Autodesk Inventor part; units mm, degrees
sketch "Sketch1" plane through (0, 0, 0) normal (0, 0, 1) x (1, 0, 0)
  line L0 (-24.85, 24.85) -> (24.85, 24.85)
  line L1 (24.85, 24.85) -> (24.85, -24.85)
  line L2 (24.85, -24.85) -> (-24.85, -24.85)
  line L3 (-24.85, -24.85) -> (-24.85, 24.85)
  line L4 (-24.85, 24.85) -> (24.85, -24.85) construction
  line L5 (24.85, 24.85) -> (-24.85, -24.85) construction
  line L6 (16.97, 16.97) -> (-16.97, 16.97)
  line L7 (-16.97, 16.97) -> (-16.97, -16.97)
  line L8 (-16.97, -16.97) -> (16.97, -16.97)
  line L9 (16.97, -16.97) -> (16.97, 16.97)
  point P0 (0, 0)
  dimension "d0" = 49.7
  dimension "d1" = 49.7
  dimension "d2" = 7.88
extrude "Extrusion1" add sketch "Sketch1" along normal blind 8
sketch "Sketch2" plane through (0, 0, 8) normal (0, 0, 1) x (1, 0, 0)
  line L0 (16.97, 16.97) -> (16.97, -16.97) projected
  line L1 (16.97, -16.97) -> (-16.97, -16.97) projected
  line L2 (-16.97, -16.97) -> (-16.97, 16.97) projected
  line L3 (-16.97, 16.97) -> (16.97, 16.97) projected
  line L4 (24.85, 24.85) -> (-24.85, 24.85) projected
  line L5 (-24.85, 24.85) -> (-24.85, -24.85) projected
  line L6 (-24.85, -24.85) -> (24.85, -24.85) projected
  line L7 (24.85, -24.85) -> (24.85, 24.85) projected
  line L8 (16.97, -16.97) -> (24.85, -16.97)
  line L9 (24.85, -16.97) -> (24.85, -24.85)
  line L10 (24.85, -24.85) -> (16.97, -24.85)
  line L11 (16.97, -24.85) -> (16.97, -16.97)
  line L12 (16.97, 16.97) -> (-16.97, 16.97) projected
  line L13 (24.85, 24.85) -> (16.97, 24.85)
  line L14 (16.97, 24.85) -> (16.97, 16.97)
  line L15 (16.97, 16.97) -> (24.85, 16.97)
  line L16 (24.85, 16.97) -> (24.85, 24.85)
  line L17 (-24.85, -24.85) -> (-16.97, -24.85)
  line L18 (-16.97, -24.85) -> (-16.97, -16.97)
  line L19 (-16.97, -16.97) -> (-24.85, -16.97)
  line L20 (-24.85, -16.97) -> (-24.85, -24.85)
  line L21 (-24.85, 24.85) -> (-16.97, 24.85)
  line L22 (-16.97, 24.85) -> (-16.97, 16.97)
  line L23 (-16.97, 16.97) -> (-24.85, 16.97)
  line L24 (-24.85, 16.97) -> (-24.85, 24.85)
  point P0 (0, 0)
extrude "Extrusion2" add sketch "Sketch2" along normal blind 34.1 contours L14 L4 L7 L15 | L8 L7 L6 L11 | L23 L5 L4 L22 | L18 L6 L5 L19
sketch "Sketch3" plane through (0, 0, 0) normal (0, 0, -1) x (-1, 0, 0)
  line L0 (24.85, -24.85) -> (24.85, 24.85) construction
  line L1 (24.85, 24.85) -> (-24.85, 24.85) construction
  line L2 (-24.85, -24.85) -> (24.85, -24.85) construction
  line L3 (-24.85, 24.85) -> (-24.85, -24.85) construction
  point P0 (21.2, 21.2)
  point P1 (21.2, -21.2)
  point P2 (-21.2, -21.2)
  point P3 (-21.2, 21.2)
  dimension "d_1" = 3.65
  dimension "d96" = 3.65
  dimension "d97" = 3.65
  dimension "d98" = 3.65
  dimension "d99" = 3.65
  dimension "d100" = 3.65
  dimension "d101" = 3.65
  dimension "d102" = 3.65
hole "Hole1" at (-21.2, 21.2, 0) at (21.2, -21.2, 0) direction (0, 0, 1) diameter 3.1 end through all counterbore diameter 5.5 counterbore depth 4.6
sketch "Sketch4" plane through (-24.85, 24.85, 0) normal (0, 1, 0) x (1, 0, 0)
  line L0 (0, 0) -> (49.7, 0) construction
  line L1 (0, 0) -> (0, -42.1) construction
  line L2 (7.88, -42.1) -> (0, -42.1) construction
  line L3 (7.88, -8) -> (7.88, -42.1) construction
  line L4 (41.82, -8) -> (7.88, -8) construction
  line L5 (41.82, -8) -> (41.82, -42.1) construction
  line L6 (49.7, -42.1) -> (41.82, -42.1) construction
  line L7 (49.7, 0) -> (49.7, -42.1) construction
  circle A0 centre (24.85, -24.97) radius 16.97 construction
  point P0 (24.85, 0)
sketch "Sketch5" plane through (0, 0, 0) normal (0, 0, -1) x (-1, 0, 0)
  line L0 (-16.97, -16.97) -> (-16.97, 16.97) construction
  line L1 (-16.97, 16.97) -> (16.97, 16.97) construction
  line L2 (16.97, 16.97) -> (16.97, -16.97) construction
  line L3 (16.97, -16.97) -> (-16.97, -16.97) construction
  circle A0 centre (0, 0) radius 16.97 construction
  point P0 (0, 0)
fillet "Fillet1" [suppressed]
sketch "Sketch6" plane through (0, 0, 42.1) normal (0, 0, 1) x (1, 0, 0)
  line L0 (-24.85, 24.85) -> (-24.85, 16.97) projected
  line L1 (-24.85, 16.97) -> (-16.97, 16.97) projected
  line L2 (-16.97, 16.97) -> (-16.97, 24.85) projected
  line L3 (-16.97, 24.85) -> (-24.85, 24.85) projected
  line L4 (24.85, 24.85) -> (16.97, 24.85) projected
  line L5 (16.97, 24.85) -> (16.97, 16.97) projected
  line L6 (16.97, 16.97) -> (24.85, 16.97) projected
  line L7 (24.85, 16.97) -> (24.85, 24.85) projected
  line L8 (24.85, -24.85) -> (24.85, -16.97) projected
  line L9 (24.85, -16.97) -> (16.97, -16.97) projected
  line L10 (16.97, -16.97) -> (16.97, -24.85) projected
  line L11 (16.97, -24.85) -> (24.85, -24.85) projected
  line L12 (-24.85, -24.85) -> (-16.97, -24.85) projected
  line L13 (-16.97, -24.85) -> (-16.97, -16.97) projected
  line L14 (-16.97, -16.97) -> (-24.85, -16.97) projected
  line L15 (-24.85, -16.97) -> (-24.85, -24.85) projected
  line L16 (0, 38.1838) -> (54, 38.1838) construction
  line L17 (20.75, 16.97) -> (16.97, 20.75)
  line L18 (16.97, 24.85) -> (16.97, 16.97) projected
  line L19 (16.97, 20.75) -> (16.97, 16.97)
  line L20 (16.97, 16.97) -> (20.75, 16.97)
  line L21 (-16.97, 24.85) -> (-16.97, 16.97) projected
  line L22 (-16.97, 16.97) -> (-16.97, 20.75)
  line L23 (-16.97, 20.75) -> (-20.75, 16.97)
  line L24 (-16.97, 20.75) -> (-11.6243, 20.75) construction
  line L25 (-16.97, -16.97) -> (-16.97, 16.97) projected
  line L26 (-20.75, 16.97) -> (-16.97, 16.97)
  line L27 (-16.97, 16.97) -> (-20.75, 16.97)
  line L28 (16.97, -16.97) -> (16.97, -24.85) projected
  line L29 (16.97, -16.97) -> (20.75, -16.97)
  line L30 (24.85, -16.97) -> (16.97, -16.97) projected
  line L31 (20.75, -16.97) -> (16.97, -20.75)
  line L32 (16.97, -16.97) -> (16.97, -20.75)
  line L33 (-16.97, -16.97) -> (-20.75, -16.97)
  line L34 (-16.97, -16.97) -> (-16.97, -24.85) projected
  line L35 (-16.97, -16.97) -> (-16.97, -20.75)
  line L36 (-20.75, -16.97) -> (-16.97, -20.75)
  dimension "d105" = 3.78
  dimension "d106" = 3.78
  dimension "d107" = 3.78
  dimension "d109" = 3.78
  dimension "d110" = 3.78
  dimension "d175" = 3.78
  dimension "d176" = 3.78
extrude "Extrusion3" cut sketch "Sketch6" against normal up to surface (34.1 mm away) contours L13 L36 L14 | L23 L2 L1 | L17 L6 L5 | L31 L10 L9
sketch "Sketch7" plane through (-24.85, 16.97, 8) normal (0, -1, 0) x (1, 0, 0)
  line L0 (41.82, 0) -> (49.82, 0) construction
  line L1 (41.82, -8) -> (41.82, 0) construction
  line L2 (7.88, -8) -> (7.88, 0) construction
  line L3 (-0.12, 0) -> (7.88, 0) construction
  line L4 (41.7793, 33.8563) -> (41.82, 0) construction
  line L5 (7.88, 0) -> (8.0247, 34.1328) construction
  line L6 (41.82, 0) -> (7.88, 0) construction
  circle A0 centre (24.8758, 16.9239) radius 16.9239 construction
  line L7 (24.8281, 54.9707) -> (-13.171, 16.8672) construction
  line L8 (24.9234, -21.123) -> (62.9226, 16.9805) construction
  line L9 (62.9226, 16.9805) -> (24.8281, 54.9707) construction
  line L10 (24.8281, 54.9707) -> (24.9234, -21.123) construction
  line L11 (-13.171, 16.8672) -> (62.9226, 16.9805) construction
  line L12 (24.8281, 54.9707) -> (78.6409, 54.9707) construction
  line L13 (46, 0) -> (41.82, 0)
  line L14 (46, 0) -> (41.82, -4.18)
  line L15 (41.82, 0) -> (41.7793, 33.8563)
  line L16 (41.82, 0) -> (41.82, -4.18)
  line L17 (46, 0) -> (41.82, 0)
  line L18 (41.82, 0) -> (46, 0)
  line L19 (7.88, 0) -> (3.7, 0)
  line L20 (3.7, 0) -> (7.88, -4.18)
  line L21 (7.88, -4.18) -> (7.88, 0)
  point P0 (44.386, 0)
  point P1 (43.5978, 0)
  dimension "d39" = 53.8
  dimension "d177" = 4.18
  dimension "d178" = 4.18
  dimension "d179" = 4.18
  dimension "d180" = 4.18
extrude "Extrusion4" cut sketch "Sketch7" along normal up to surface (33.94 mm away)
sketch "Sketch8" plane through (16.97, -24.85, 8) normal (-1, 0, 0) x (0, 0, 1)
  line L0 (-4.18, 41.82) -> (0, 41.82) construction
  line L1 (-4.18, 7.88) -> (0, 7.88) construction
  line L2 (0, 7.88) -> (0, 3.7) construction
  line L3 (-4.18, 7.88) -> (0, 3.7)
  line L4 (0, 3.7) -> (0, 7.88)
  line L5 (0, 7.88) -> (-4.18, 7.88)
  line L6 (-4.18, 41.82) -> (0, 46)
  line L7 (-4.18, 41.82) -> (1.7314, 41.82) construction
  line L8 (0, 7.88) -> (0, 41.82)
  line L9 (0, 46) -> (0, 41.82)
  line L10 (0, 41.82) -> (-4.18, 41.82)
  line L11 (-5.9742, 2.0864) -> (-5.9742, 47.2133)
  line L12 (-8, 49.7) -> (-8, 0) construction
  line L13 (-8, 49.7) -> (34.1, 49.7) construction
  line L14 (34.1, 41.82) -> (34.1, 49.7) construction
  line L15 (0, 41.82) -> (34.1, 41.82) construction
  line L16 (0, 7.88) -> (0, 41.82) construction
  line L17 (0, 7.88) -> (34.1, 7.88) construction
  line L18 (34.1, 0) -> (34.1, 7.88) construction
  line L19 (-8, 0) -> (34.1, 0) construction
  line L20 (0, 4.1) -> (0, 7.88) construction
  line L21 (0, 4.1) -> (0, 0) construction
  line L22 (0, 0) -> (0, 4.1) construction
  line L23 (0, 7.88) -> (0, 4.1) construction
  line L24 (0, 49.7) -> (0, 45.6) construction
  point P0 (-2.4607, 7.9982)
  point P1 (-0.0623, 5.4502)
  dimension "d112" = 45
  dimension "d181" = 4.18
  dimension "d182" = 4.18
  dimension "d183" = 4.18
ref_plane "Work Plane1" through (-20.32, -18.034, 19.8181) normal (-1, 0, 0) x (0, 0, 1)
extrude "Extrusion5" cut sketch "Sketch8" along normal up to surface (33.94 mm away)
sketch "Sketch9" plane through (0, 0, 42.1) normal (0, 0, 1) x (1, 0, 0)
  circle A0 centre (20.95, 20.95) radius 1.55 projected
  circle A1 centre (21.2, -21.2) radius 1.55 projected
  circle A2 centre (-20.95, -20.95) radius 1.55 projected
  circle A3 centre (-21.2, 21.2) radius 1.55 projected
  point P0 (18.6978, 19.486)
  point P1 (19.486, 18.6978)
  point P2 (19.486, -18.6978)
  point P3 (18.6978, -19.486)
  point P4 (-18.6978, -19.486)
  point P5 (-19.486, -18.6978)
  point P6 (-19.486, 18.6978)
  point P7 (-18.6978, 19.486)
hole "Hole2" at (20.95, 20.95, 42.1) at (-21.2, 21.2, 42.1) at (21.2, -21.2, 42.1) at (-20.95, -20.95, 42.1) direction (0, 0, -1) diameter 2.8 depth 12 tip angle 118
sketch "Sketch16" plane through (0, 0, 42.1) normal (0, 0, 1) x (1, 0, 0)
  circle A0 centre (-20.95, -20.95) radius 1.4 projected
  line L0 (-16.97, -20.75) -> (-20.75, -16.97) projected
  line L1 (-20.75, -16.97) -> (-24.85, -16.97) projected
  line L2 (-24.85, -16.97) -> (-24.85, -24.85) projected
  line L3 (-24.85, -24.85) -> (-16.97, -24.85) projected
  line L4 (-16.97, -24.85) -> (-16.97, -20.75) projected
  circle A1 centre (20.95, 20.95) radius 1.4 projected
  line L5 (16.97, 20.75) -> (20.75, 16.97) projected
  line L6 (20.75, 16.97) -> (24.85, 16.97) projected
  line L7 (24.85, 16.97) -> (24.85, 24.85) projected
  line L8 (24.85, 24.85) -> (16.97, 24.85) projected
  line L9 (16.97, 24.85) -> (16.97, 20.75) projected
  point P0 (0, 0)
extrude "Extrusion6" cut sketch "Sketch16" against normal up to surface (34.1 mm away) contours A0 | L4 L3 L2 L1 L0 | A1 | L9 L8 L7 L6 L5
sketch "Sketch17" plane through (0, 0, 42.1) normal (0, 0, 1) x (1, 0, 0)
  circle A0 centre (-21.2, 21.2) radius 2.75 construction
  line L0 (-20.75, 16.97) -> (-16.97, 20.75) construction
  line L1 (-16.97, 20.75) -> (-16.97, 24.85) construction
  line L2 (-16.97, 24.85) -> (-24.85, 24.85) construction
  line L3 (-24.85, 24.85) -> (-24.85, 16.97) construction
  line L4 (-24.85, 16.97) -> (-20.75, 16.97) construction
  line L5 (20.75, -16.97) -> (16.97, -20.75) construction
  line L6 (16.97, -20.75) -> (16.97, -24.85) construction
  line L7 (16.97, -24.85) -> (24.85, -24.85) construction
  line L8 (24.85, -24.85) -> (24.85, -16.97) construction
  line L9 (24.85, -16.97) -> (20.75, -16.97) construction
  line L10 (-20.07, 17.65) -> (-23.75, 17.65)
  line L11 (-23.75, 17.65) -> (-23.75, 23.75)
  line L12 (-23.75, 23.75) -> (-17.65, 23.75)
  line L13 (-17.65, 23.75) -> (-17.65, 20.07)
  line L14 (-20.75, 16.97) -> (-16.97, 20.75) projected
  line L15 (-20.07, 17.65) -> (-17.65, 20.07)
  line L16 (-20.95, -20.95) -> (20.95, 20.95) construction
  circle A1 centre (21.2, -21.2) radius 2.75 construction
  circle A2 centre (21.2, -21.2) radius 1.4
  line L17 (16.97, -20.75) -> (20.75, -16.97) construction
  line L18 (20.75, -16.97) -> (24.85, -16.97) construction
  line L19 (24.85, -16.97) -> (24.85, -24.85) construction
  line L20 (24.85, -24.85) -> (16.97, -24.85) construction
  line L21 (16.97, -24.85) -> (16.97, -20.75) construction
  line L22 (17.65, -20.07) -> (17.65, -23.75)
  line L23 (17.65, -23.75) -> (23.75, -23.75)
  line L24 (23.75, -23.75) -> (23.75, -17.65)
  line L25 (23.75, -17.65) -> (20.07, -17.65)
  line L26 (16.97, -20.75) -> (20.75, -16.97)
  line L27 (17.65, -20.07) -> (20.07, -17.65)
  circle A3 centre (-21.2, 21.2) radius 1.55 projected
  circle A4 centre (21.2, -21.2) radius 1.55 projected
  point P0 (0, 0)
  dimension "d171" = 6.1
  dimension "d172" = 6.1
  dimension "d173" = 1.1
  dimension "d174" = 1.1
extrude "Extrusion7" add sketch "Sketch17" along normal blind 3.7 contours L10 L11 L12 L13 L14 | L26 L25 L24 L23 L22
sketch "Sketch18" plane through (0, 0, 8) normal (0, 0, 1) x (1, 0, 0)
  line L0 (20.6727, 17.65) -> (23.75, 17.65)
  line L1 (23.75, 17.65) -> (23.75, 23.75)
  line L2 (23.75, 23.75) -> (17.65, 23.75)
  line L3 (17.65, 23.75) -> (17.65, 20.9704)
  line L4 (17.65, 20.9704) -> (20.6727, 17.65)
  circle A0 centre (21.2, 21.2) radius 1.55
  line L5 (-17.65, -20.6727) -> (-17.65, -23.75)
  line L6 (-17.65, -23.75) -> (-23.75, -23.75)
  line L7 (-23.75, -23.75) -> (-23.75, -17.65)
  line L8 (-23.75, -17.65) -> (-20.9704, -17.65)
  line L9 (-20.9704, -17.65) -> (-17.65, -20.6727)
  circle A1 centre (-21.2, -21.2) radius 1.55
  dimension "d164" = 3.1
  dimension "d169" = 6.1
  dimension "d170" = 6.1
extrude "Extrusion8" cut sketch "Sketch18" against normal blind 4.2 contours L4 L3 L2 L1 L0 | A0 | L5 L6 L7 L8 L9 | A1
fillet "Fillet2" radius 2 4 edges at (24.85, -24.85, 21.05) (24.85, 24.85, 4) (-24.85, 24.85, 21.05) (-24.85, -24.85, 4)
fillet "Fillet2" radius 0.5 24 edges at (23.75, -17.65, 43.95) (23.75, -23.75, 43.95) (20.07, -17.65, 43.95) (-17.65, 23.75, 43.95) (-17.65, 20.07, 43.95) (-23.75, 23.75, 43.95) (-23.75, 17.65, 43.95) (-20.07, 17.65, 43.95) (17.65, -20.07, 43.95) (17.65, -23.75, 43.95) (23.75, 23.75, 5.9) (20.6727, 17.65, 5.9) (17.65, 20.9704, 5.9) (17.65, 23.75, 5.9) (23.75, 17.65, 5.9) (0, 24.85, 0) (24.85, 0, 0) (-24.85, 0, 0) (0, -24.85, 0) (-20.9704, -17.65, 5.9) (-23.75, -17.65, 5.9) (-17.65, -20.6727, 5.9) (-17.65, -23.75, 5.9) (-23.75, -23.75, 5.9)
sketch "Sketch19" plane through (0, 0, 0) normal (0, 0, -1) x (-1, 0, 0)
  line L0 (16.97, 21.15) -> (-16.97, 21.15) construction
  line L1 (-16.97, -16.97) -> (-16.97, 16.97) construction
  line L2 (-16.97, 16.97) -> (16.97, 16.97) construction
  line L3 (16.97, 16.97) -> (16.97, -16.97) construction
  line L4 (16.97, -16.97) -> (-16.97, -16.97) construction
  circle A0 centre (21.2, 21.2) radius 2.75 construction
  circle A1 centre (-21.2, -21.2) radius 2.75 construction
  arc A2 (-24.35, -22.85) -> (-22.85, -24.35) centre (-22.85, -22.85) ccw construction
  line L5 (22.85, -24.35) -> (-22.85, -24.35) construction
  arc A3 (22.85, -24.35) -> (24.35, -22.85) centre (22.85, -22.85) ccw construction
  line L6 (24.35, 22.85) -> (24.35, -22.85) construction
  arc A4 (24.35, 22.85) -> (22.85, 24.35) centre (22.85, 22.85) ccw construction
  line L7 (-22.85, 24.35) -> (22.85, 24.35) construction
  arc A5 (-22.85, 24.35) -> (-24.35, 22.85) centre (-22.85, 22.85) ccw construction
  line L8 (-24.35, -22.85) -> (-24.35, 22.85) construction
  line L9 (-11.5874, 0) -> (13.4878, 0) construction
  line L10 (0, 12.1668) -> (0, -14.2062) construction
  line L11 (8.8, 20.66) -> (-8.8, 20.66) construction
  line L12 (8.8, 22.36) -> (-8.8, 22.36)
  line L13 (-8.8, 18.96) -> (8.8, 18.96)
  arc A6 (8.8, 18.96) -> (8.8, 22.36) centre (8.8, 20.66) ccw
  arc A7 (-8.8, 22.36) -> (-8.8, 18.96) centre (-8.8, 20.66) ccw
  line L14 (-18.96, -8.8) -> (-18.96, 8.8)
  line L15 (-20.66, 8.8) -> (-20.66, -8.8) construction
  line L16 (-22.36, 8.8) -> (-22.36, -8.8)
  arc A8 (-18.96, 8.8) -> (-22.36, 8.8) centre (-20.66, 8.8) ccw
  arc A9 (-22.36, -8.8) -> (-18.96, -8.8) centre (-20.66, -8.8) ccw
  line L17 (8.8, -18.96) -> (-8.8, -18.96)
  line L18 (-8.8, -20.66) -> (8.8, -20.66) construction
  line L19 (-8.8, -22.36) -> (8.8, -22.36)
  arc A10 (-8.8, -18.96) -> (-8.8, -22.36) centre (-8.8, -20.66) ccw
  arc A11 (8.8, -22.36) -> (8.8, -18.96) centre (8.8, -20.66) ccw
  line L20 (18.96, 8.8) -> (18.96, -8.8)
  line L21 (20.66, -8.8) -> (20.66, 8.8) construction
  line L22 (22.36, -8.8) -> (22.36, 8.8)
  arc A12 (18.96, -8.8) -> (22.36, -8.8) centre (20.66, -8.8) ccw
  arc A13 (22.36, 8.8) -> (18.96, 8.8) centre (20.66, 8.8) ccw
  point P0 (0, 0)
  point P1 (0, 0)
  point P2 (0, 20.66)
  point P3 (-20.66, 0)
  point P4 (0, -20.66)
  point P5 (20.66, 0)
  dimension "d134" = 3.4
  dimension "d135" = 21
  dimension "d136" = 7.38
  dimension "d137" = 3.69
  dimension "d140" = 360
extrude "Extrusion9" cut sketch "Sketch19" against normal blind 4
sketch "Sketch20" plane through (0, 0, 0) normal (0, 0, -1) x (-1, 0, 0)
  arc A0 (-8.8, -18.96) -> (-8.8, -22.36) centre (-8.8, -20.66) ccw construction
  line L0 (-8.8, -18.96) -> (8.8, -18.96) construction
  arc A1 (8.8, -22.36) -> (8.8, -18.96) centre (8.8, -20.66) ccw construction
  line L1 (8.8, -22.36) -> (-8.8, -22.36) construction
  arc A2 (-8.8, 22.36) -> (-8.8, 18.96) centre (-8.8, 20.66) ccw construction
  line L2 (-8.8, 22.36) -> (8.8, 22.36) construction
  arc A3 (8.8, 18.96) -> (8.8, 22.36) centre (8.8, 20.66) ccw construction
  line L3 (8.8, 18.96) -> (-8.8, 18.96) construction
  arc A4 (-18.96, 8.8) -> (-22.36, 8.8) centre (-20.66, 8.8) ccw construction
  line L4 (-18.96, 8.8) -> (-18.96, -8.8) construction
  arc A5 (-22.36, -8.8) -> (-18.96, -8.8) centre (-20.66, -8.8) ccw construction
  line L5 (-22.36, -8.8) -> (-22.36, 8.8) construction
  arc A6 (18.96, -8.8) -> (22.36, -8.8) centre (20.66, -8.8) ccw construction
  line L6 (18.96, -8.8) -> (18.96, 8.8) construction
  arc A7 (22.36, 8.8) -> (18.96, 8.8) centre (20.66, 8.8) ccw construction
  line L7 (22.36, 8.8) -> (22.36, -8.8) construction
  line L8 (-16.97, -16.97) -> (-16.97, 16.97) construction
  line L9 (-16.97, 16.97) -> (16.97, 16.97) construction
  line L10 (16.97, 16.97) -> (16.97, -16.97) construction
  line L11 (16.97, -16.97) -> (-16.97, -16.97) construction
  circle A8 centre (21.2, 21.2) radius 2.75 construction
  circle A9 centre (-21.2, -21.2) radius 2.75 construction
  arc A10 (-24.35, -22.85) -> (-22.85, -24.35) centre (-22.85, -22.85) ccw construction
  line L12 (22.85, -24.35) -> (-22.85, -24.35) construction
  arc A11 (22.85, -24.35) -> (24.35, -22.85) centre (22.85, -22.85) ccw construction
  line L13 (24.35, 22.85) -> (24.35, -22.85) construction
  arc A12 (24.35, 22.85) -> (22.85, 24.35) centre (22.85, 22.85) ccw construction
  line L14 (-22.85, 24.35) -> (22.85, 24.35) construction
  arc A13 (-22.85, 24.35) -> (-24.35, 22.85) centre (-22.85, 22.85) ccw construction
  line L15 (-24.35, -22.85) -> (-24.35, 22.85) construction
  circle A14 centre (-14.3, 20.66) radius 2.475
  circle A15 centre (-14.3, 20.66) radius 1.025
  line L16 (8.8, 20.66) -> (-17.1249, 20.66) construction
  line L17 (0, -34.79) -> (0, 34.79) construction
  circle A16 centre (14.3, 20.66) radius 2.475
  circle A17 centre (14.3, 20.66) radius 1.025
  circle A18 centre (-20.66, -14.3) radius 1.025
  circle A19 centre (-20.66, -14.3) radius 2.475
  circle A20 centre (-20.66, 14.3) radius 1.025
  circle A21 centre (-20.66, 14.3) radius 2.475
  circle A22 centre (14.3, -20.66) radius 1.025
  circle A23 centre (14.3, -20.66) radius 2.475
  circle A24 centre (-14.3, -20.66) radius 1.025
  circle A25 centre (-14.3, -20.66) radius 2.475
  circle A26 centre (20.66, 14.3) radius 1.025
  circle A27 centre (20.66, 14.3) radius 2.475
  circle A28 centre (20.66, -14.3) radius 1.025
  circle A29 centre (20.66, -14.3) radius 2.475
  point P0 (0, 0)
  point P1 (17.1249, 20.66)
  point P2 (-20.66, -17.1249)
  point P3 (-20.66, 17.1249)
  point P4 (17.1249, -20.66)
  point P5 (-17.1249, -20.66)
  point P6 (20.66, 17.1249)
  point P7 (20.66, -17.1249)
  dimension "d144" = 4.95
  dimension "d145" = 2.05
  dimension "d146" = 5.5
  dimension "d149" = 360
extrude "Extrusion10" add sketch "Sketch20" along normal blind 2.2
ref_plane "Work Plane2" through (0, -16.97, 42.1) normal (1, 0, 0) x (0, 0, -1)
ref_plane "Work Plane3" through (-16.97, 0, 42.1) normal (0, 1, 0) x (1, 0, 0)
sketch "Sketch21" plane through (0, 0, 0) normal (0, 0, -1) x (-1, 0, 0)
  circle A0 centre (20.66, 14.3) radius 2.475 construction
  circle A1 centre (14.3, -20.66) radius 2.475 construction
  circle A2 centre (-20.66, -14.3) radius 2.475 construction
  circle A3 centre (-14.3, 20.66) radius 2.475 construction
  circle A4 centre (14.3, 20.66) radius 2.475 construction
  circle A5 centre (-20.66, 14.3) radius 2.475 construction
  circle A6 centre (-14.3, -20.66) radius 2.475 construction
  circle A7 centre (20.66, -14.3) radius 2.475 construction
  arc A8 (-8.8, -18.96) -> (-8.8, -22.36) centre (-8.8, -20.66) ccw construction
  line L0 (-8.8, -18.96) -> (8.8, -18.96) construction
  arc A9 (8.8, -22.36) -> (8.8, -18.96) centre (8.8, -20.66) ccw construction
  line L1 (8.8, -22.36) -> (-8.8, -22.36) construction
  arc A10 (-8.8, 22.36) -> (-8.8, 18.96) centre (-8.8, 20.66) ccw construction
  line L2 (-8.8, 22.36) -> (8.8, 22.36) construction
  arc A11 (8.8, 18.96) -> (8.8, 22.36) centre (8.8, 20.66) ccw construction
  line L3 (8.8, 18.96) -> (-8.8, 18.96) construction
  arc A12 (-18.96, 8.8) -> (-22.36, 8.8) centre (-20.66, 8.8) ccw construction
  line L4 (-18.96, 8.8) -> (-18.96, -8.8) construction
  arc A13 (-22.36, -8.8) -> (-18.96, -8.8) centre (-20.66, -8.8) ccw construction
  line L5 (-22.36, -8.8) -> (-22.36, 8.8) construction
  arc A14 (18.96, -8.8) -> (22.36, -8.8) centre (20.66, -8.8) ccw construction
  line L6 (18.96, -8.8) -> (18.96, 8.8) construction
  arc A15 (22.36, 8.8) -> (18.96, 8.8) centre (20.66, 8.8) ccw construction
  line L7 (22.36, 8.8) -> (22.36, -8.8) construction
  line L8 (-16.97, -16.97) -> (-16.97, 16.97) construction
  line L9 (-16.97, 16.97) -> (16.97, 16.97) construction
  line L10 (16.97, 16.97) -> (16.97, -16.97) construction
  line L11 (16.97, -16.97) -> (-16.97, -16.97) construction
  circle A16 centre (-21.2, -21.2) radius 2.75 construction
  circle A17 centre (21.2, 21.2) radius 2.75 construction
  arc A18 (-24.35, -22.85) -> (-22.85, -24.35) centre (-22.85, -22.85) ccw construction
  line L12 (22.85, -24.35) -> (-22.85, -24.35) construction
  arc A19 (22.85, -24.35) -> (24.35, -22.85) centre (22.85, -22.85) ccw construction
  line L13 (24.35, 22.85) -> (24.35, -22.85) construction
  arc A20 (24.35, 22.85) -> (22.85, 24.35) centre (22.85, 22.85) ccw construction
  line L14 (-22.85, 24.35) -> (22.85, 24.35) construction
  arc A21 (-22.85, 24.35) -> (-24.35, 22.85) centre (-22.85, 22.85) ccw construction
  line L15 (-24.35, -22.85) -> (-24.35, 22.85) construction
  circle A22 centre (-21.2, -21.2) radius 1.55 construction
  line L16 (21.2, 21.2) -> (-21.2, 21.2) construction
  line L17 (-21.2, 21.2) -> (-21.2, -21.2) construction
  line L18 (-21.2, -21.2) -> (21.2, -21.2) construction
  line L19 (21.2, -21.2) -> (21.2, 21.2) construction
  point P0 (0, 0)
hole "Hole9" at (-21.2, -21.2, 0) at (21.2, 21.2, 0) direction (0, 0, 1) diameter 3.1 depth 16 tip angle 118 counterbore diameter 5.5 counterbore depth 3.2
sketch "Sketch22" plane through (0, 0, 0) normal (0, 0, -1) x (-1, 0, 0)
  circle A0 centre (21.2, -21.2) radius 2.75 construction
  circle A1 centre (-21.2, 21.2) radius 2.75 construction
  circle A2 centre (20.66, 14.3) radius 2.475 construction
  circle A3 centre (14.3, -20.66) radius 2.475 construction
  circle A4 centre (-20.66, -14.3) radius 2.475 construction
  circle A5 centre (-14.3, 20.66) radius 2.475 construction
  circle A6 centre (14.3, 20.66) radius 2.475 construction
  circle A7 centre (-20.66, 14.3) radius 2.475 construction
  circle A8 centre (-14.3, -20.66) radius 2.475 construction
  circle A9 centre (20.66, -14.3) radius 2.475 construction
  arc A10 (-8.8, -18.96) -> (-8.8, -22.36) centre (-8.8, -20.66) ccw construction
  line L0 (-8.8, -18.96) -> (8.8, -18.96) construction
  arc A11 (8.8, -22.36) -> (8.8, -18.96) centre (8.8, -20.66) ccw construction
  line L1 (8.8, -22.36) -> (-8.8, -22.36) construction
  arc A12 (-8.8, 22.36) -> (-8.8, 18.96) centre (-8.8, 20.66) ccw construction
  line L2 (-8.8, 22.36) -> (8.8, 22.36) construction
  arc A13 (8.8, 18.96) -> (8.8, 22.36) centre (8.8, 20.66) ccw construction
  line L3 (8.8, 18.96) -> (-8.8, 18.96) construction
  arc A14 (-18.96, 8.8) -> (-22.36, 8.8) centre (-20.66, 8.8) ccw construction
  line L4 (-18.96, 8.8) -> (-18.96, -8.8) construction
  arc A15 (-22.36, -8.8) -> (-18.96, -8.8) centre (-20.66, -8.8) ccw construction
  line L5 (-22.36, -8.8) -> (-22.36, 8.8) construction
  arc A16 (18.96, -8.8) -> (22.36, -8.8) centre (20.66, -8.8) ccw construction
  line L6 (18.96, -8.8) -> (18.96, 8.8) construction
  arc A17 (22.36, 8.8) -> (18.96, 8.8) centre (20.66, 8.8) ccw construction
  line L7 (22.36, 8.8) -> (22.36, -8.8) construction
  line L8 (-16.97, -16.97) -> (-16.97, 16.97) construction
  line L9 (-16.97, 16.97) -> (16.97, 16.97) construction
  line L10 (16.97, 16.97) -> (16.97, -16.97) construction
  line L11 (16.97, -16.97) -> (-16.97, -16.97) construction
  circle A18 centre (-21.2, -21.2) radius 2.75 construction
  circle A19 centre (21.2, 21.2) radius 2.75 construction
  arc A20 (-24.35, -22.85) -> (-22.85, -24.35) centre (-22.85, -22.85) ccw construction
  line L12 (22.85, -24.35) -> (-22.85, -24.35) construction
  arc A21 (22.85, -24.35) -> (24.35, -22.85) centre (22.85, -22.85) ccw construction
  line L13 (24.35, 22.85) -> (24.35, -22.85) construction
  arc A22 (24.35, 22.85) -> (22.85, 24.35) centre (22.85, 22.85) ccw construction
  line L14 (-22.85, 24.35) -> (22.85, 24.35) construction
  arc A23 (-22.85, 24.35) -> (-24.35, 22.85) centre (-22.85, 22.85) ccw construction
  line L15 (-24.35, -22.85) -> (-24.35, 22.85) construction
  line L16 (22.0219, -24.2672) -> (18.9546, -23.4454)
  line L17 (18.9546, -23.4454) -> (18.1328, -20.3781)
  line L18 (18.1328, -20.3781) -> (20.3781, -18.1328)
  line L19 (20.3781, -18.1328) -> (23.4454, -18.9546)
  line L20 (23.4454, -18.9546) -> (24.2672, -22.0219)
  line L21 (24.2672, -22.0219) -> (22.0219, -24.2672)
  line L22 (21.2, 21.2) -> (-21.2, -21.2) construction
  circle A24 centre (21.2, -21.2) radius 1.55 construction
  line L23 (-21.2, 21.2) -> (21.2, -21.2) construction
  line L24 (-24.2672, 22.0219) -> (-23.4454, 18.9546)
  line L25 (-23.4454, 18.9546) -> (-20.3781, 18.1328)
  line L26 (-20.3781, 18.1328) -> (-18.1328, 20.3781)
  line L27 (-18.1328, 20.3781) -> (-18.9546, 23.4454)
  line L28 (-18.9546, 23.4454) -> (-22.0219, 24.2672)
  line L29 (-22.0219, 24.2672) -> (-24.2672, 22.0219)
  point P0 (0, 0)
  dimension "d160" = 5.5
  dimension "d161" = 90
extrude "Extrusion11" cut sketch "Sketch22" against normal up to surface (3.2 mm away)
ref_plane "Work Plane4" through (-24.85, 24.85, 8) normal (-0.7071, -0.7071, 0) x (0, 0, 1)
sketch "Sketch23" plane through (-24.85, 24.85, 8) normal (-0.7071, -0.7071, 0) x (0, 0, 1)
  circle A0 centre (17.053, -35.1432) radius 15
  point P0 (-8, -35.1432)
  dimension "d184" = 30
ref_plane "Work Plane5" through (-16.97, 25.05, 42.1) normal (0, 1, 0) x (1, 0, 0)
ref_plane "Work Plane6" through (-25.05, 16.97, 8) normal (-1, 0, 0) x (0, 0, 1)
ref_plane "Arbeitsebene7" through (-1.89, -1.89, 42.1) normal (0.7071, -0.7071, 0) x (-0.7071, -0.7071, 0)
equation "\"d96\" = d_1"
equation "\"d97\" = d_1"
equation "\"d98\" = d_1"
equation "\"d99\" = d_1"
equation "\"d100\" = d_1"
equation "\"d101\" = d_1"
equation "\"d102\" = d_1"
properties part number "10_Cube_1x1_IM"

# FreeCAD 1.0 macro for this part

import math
import FreeCAD as App
import Part
import Sketcher

V = App.Vector
Q = App.Units.Quantity


def edges_at(feature, points):
    """Names of the edges that pass closest to the given points."""
    edges = feature.Shape.Edges
    near = lambda p: min(range(len(edges)), key=lambda i: edges[i].distToShape(Part.Vertex(*p))[0])
    return sorted({f"Edge{near(p) + 1}" for p in points})


def add_polygon(sketch, points):
    """Adds a closed chain of lines whose ends are joined by coincident constraints."""
    first, n = sketch.GeometryCount, len(points)
    for a, b in zip(points, points[1:] + points[:1]):
        sketch.addGeometry(Part.LineSegment(App.Vector(*a, 0), App.Vector(*b, 0)), False)
    for i in range(n):
        sketch.addConstraint(Sketcher.Constraint("Coincident", first + i, 2, first + (i + 1) % n, 1))

doc = App.newDocument("Part")
body = doc.addObject("PartDesign::Body", "Body")

# Sketch on XY plane
sketch1 = doc.addObject("Sketcher::SketchObject", "Sketch")
body.addObject(sketch1)
sketch1.AttachmentSupport = (doc.XY_Plane, [""])
sketch1.MapMode = "FlatFace"
add_polygon(sketch1, [(25, 25), (-25, 25), (-25, -25), (25, -25)])  # lines 0-3
add_polygon(sketch1, [(-17, 17), (17, 17), (17, -17), (-17, -17)])  # lines 4-7
sketch1.addConstraint([
    Sketcher.Constraint("Horizontal", 0),
    Sketcher.Constraint("Vertical", 1),
    Sketcher.Constraint("Horizontal", 2),
    Sketcher.Constraint("Vertical", 3),
    Sketcher.Constraint("Horizontal", 4),
    Sketcher.Constraint("Vertical", 5),
    Sketcher.Constraint("Horizontal", 6),
    Sketcher.Constraint("Vertical", 7),
    Sketcher.Constraint("Symmetric", 0, 2, 2, 2, -1, 1),
    Sketcher.Constraint("Symmetric", 4, 2, 6, 2, -1, 1),
    Sketcher.Constraint("Equal", 2, 1),
    Sketcher.Constraint("Equal", 6, 5),
    Sketcher.Constraint("DistanceX", 0, 2, 0, 1, Q("49.7 mm")),
    Sketcher.Constraint("DistanceX", 4, 2, 3, 2, Q("7.88 mm")),
])
pad1 = doc.addObject("PartDesign::Pad", "Pad")
body.addObject(pad1)
pad1.Profile = sketch1
pad1.Length = 8

# Sketch on XY plane
sketch2 = doc.addObject("Sketcher::SketchObject", "Sketch001")
body.addObject(sketch2)
sketch2.AttachmentSupport = (doc.XY_Plane, [""])
sketch2.MapMode = "FlatFace"
sketch2.AttachmentOffset = App.Placement(V(0, 0, 8), App.Rotation())
add_polygon(sketch2, [(17, 25), (17, 17), (25, 17), (25, 25)])  # lines 0-3
add_polygon(sketch2, [(25, -17), (17, -17), (17, -25), (25, -25)])  # lines 4-7
add_polygon(sketch2, [(-25, 17), (-17, 17), (-17, 25), (-25, 25)])  # lines 8-11
add_polygon(sketch2, [(-17, -25), (-17, -17), (-25, -17), (-25, -25)])  # lines 12-15
sketch2.addConstraint([
    Sketcher.Constraint("Vertical", 0),
    Sketcher.Constraint("Horizontal", 1),
    Sketcher.Constraint("Vertical", 2),
    Sketcher.Constraint("Horizontal", 3),
    Sketcher.Constraint("Horizontal", 4),
    Sketcher.Constraint("Vertical", 5),
    Sketcher.Constraint("Horizontal", 6),
    Sketcher.Constraint("Vertical", 7),
    Sketcher.Constraint("Horizontal", 8),
    Sketcher.Constraint("Vertical", 9),
    Sketcher.Constraint("Horizontal", 10),
    Sketcher.Constraint("Vertical", 11),
    Sketcher.Constraint("Vertical", 12),
    Sketcher.Constraint("Horizontal", 13),
    Sketcher.Constraint("Vertical", 14),
    Sketcher.Constraint("Horizontal", 15),
    Sketcher.Constraint("Symmetric", 4, 2, 8, 2, -1, 1),
    Sketcher.Constraint("Symmetric", 6, 2, 10, 2, -1, 1),
    Sketcher.Constraint("Symmetric", 0, 2, 12, 2, -1, 1),
    Sketcher.Constraint("Symmetric", 2, 2, 14, 2, -1, 1),
    Sketcher.Constraint("Symmetric", 0, 2, 8, 2, -2),
    Sketcher.Constraint("Symmetric", 2, 2, 10, 2, -2),
    Sketcher.Constraint("Equal", 15, 0),
    Sketcher.Constraint("DistanceX", 1, 1, 1, 2, Q("7.88 mm")),
    Sketcher.Constraint("DistanceY", 5, 2, 3, 2, Q("49.7 mm")),
    Sketcher.Constraint("DistanceX", 10, 2, 2, 2, Q("49.7 mm")),
])
pad2 = doc.addObject("PartDesign::Pad", "Pad001")
body.addObject(pad2)
pad2.Profile = sketch2
pad2.Length = 34.1

# Sketch on XY plane
sketch3 = doc.addObject("Sketcher::SketchObject", "Sketch002")
body.addObject(sketch3)
sketch3.AttachmentSupport = (doc.XY_Plane, [""])
sketch3.MapMode = "FlatFace"
sketch3.addGeometry([
    Part.Circle(V(-21.2, 21.2, 0), V(0, 0, 1), 1.6),
    Part.Circle(V(21.2, -21.2, 0), V(0, 0, 1), 1.6),
], False)
sketch3.addConstraint([
    Sketcher.Constraint("Equal", 0, 1),
    Sketcher.Constraint("Symmetric", 0, 3, 1, 3, -1, 1),
    Sketcher.Constraint("Diameter", 0, Q("3.1 mm")),
    Sketcher.Constraint("DistanceX", 0, 3, -1, 1, Q("21.2 mm")),
    Sketcher.Constraint("DistanceY", -1, 1, 0, 3, Q("21.2 mm")),
])
doc.recompute()
hole = doc.addObject("PartDesign::Hole", "Hole")
body.addObject(hole)
hole.Profile = sketch3
hole.ThreadType = "None"
hole.Diameter = 3.1
hole.DepthType = "ThroughAll"
hole.HoleCutType = "Counterbore"
hole.HoleCutDiameter = 5.5
hole.HoleCutDepth = 4.6
hole.Reversed = True

# Sketch on XY plane
sketch4 = doc.addObject("Sketcher::SketchObject", "Sketch003")
body.addObject(sketch4)
sketch4.AttachmentSupport = (doc.XY_Plane, [""])
sketch4.MapMode = "FlatFace"
sketch4.AttachmentOffset = App.Placement(V(0, 0, 42.1), App.Rotation())
add_polygon(sketch4, [(-17, -20.8), (-17, -17), (-20.8, -17)])  # lines 0-2
add_polygon(sketch4, [(-17, 20.8), (-20.8, 17), (-17, 17)])  # lines 3-5
add_polygon(sketch4, [(20.8, 17), (17, 20.8), (17, 17)])  # lines 6-8
add_polygon(sketch4, [(17, -20.8), (20.8, -17), (17, -17)])  # lines 9-11
sketch4.addConstraint([
    Sketcher.Constraint("Vertical", 0),
    Sketcher.Constraint("Horizontal", 1),
    Sketcher.Constraint("Horizontal", 4),
    Sketcher.Constraint("Vertical", 5),
    Sketcher.Constraint("Vertical", 7),
    Sketcher.Constraint("Horizontal", 8),
    Sketcher.Constraint("Horizontal", 10),
    Sketcher.Constraint("Vertical", 11),
    Sketcher.Constraint("Symmetric", 2, 2, 6, 2, -1, 1),
    Sketcher.Constraint("Symmetric", 1, 2, 8, 2, -1, 1),
    Sketcher.Constraint("Symmetric", 3, 2, 9, 2, -1, 1),
    Sketcher.Constraint("Symmetric", 5, 2, 11, 2, -1, 1),
    Sketcher.Constraint("Symmetric", 5, 2, 6, 2, -2),
    Sketcher.Constraint("Symmetric", 3, 2, 8, 2, -2),
    Sketcher.Constraint("Perpendicular", 2, 3),
    Sketcher.Constraint("DistanceX", 1, 2, 1, 1, Q("3.78 mm")),
    Sketcher.Constraint("DistanceY", 2, 2, 5, 2, Q("41.5 mm")),
    Sketcher.Constraint("DistanceX", 3, 2, 8, 2, Q("41.5 mm")),
])
pocket1 = doc.addObject("PartDesign::Pocket", "Pocket")
body.addObject(pocket1)
pocket1.Profile = sketch4
pocket1.Length = 34.1

# Sketch on XZ plane
sketch5 = doc.addObject("Sketcher::SketchObject", "Sketch004")
body.addObject(sketch5)
sketch5.AttachmentSupport = (doc.XZ_Plane, [""])
sketch5.MapMode = "FlatFace"
sketch5.AttachmentOffset = App.Placement(V(0, 0, -16.97), App.Rotation())
add_polygon(sketch5, [(17, 3.8), (21.1, 8), (17, 8)])  # lines 0-2
add_polygon(sketch5, [(-17, 3.8), (-17, 8), (-21.1, 8)])  # lines 3-5
sketch5.addConstraint([
    Sketcher.Constraint("Horizontal", 1),
    Sketcher.Constraint("Vertical", 2),
    Sketcher.Constraint("Vertical", 3),
    Sketcher.Constraint("Horizontal", 4),
    Sketcher.Constraint("Symmetric", 1, 2, 3, 2, -2),
    Sketcher.Constraint("Perpendicular", 0, 5),
    Sketcher.Constraint("Horizontal", 2, 2, 5, 2),
    Sketcher.Constraint("Equal", 1, 4),
    Sketcher.Constraint("DistanceX", 1, 2, 1, 1, Q("4.18 mm")),
    Sketcher.Constraint("DistanceY", -1, 1, 0, 2, Q("8 mm")),
    Sketcher.Constraint("DistanceX", 4, 2, 0, 2, Q("42.3 mm")),
])
pocket2 = doc.addObject("PartDesign::Pocket", "Pocket001")
body.addObject(pocket2)
pocket2.Profile = sketch5
pocket2.Length = 33.94
pocket2.Reversed = True

# Sketch on YZ plane
sketch6 = doc.addObject("Sketcher::SketchObject", "Sketch005")
body.addObject(sketch6)
sketch6.AttachmentSupport = (doc.YZ_Plane, [""])
sketch6.MapMode = "FlatFace"
sketch6.AttachmentOffset = App.Placement(V(0, 0, 16.97), App.Rotation())
add_polygon(sketch6, [(-17, 8), (-17, 3.8), (-21.1, 8)])  # lines 0-2
add_polygon(sketch6, [(17, 3.8), (17, 8), (21.1, 8)])  # lines 3-5
sketch6.addConstraint([
    Sketcher.Constraint("Vertical", 0),
    Sketcher.Constraint("Horizontal", 2),
    Sketcher.Constraint("Vertical", 3),
    Sketcher.Constraint("Horizontal", 4),
    Sketcher.Constraint("Symmetric", 2, 2, 3, 2, -2),
    Sketcher.Constraint("Perpendicular", 1, 5),
    Sketcher.Constraint("Horizontal", 0, 2, 5, 2),
    Sketcher.Constraint("Equal", 2, 4),
    Sketcher.Constraint("DistanceX", 2, 1, 2, 2, Q("4.18 mm")),
    Sketcher.Constraint("DistanceY", -1, 1, 1, 2, Q("8 mm")),
    Sketcher.Constraint("DistanceX", 1, 2, 4, 2, Q("42.3 mm")),
])
pocket3 = doc.addObject("PartDesign::Pocket", "Pocket002")
body.addObject(pocket3)
pocket3.Profile = sketch6
pocket3.Length = 33.94

# Sketch on XY plane
sketch7 = doc.addObject("Sketcher::SketchObject", "Sketch006")
body.addObject(sketch7)
sketch7.AttachmentSupport = (doc.XY_Plane, [""])
sketch7.MapMode = "FlatFace"
sketch7.AttachmentOffset = App.Placement(V(0, 0, 42.1), App.Rotation())
sketch7.addGeometry([
    Part.Circle(V(20.9, 20.9, 0), V(0, 0, 1), 1.4),
    Part.Circle(V(-21.2, 21.2, 0), V(0, 0, 1), 1.4),
    Part.Circle(V(21.2, -21.2, 0), V(0, 0, 1), 1.4),
    Part.Circle(V(-20.9, -20.9, 0), V(0, 0, 1), 1.4),
], False)
sketch7.addConstraint([
    Sketcher.Constraint("Equal", 0, 1),
    Sketcher.Constraint("Equal", 1, 2),
    Sketcher.Constraint("Equal", 2, 3),
    Sketcher.Constraint("Symmetric", 1, 3, 2, 3, -1, 1),
    Sketcher.Constraint("Symmetric", 0, 3, 3, 3, -1, 1),
    Sketcher.Constraint("Diameter", 0, Q("2.8 mm")),
    Sketcher.Constraint("DistanceX", 1, 3, -1, 1, Q("21.2 mm")),
    Sketcher.Constraint("DistanceY", -1, 1, 1, 3, Q("21.2 mm")),
    Sketcher.Constraint("DistanceX", 3, 3, 0, 3, Q("41.9 mm")),
    Sketcher.Constraint("DistanceY", 3, 3, 0, 3, Q("41.9 mm")),
])
doc.recompute()
hole2 = doc.addObject("PartDesign::Hole", "Hole001")
body.addObject(hole2)
hole2.Profile = sketch7
hole2.ThreadType = "None"
hole2.Diameter = 2.8
hole2.DepthType = "Dimension"
hole2.Depth = 12
hole2.DrillPoint = "Angled"
hole2.DrillPointAngle = 118

# Sketch on XY plane
sketch8 = doc.addObject("Sketcher::SketchObject", "Sketch007")
body.addObject(sketch8)
sketch8.AttachmentSupport = (doc.XY_Plane, [""])
sketch8.MapMode = "FlatFace"
sketch8.AttachmentOffset = App.Placement(V(0, 0, 42.1), App.Rotation())
add_polygon(sketch8, [(-17, -24.9), (-17, -20.8), (-20.8, -17), (-24.9, -17), (-24.9, -24.9)])  # lines 0-4
add_polygon(sketch8, [(17, 24.9), (17, 20.8), (20.8, 17), (24.9, 17), (24.9, 24.9)])  # lines 5-9
sketch8.addConstraint([
    Sketcher.Constraint("Vertical", 0),
    Sketcher.Constraint("Horizontal", 2),
    Sketcher.Constraint("Vertical", 3),
    Sketcher.Constraint("Horizontal", 4),
    Sketcher.Constraint("Vertical", 5),
    Sketcher.Constraint("Horizontal", 7),
    Sketcher.Constraint("Vertical", 8),
    Sketcher.Constraint("Horizontal", 9),
    Sketcher.Constraint("Symmetric", 0, 2, 5, 2, -1, 1),
    Sketcher.Constraint("Symmetric", 1, 2, 6, 2, -1, 1),
    Sketcher.Constraint("Symmetric", 3, 2, 8, 2, -1, 1),
    Sketcher.Constraint("Equal", 7, 0),
    Sketcher.Constraint("Equal", 9, 3),
    Sketcher.Constraint("DistanceX", 2, 2, 2, 1, Q("4.1 mm")),
    Sketcher.Constraint("DistanceX", 4, 1, 4, 2, Q("7.88 mm")),
    Sketcher.Constraint("DistanceY", 0, 2, 5, 2, Q("41.5 mm")),
    Sketcher.Constraint("DistanceX", 1, 2, 6, 2, Q("41.5 mm")),
])
pocket4 = doc.addObject("PartDesign::Pocket", "Pocket003")
body.addObject(pocket4)
pocket4.Profile = sketch8
pocket4.Length = 34.1

# Sketch on XY plane
sketch9 = doc.addObject("Sketcher::SketchObject", "Sketch008")
body.addObject(sketch9)
sketch9.AttachmentSupport = (doc.XY_Plane, [""])
sketch9.MapMode = "FlatFace"
sketch9.AttachmentOffset = App.Placement(V(0, 0, 42.1), App.Rotation())
add_polygon(sketch9, [(-23.8, 17.6), (-20.1, 17.6), (-17.6, 20.1), (-17.6, 23.8), (-23.8, 23.8)])  # lines 0-4
sketch9.addGeometry(Part.Circle(V(-21.2, 21.2, 0), V(0, 0, 1), 1.6), False)  # 5
add_polygon(sketch9, [(20.1, -17.6), (17.6, -20.1), (17.6, -23.8), (23.8, -23.8), (23.8, -17.6)])  # lines 6-10
sketch9.addGeometry(Part.Circle(V(21.2, -21.2, 0), V(0, 0, 1), 1.6), False)  # 11
sketch9.addConstraint([
    Sketcher.Constraint("Horizontal", 0),
    Sketcher.Constraint("Vertical", 2),
    Sketcher.Constraint("Horizontal", 3),
    Sketcher.Constraint("Vertical", 4),
    Sketcher.Constraint("Vertical", 7),
    Sketcher.Constraint("Horizontal", 8),
    Sketcher.Constraint("Vertical", 9),
    Sketcher.Constraint("Horizontal", 10),
    Sketcher.Constraint("Equal", 5, 11),
    Sketcher.Constraint("Symmetric", 5, 3, 11, 3, -1, 1),
    Sketcher.Constraint("Symmetric", 1, 2, 6, 2, -1, 1),
    Sketcher.Constraint("Symmetric", 3, 2, 8, 2, -1, 1),
    Sketcher.Constraint("Symmetric", 0, 2, 10, 2, -1, 1),
    Sketcher.Constraint("Equal", 10, 2),
    Sketcher.Constraint("Equal", 8, 4),
    Sketcher.Constraint("DistanceX", 3, 2, 3, 1, Q("6.1 mm")),
    Sketcher.Constraint("Diameter", 5, Q("3.1 mm")),
    Sketcher.Constraint("DistanceX", 0, 1, 0, 2, Q("3.68 mm")),
    Sketcher.Constraint("DistanceX", 5, 3, -1, 1, Q("21.2 mm")),
    Sketcher.Constraint("DistanceY", -1, 1, 5, 3, Q("21.2 mm")),
    Sketcher.Constraint("DistanceX", 1, 2, 6, 2, Q("35.3 mm")),
    Sketcher.Constraint("DistanceY", 7, 2, 0, 2, Q("41.4 mm")),
])
pad3 = doc.addObject("PartDesign::Pad", "Pad002")
body.addObject(pad3)
pad3.Profile = sketch9
pad3.Length = 3.7

# Sketch on XY plane
sketch10 = doc.addObject("Sketcher::SketchObject", "Sketch009")
body.addObject(sketch10)
sketch10.AttachmentSupport = (doc.XY_Plane, [""])
sketch10.MapMode = "FlatFace"
sketch10.AttachmentOffset = App.Placement(V(0, 0, 8), App.Rotation())
add_polygon(sketch10, [(17.6, 21), (20.7, 17.6), (23.8, 17.6), (23.8, 23.8), (17.6, 23.8)])  # lines 0-4
add_polygon(sketch10, [(-17.6, -23.8), (-17.6, -20.7), (-21, -17.6), (-23.8, -17.6), (-23.8, -23.8)])  # lines 5-9
sketch10.addConstraint([
    Sketcher.Constraint("Horizontal", 1),
    Sketcher.Constraint("Vertical", 2),
    Sketcher.Constraint("Horizontal", 3),
    Sketcher.Constraint("Vertical", 4),
    Sketcher.Constraint("Vertical", 5),
    Sketcher.Constraint("Horizontal", 7),
    Sketcher.Constraint("Vertical", 8),
    Sketcher.Constraint("Horizontal", 9),
    Sketcher.Constraint("Symmetric", 1, 2, 7, 2, -1, 1),
    Sketcher.Constraint("Symmetric", 3, 2, 9, 2, -1, 1),
    Sketcher.Constraint("Equal", 9, 2),
    Sketcher.Constraint("Equal", 7, 4),
    Sketcher.Constraint("Equal", 1, 5),
    Sketcher.Constraint("DistanceX", 3, 2, 3, 1, Q("6.1 mm")),
    Sketcher.Constraint("DistanceX", 5, 2, 4, 2, Q("35.3 mm")),
    Sketcher.Constraint("DistanceY", 6, 2, 0, 2, Q("35.3 mm")),
    Sketcher.Constraint("DistanceX", 1, 1, 1, 2, Q("3.0773 mm")),
    Sketcher.Constraint("DistanceX", 7, 2, 7, 1, Q("2.7796 mm")),
])
pocket5 = doc.addObject("PartDesign::Pocket", "Pocket004")
body.addObject(pocket5)
pocket5.Profile = sketch10
pocket5.Length = 4.2
doc.recompute()

fillet = doc.addObject("PartDesign::Fillet", "Fillet")
body.addObject(fillet)
fillet.Base = (pocket5, edges_at(pocket5, [
    (24.85, -24.85, 21.05),
    (24.85, 24.85, 4),
    (-24.85, 24.85, 21.05),
    (-24.85, -24.85, 4),
]))
fillet.Radius = 2
doc.recompute()

fillet2 = doc.addObject("PartDesign::Fillet", "Fillet001")
body.addObject(fillet2)
fillet2.Base = (fillet, edges_at(fillet, [
    (23.75, -17.65, 43.95),
    (23.75, -23.75, 43.95),
    (20.07, -17.65, 43.95),
    (-17.65, 23.75, 43.95),
    (-17.65, 20.07, 43.95),
    (-23.75, 23.75, 43.95),
    (-23.75, 17.65, 43.95),
    (-20.07, 17.65, 43.95),
    (17.65, -20.07, 43.95),
    (17.65, -23.75, 43.95),
    (23.75, 23.75, 5.9),
    (20.673, 17.65, 5.9),
    (17.65, 20.97, 5.9),
    (17.65, 23.75, 5.9),
    (23.75, 17.65, 5.9),
    (0, 24.85, 0),
    (24.85, 0, 0),
    (-24.85, 0, 0),
    (0, -24.85, 0),
    (-20.97, -17.65, 5.9),
    (-23.75, -17.65, 5.9),
    (-17.65, -20.673, 5.9),
    (-17.65, -23.75, 5.9),
    (-23.75, -23.75, 5.9),
]))
fillet2.Radius = 0.5

# Sketch on XY plane
sketch11 = doc.addObject("Sketcher::SketchObject", "Sketch010")
body.addObject(sketch11)
sketch11.AttachmentSupport = (doc.XY_Plane, [""])
sketch11.MapMode = "FlatFace"
sketch11.addGeometry([
    Part.ArcOfCircle(Part.Circle(V(-8.8, 20.7, 0), V(0, 0, 1), 1.7), math.radians(90), math.radians(270)),  # 0
    Part.LineSegment(V(-8.8, 22.4, 0), V(8.8, 22.4, 0)),  # 1
    Part.ArcOfCircle(Part.Circle(V(8.8, 20.7, 0), V(0, 0, 1), 1.7), math.radians(-90), math.radians(90)),  # 2
    Part.LineSegment(V(8.8, 19, 0), V(-8.8, 19, 0)),  # 3
    Part.ArcOfCircle(Part.Circle(V(20.7, -8.8, 0), V(0, 0, 1), 1.7), math.radians(180), math.radians(360)),  # 4
    Part.LineSegment(V(19, -8.8, 0), V(19, 8.8, 0)),  # 5
    Part.ArcOfCircle(Part.Circle(V(20.7, 8.8, 0), V(0, 0, 1), 1.7), math.radians(0), math.radians(180)),  # 6
    Part.LineSegment(V(22.4, 8.8, 0), V(22.4, -8.8, 0)),  # 7
    Part.ArcOfCircle(Part.Circle(V(-8.8, -20.7, 0), V(0, 0, 1), 1.7), math.radians(90), math.radians(270)),  # 8
    Part.LineSegment(V(-8.8, -19, 0), V(8.8, -19, 0)),  # 9
    Part.ArcOfCircle(Part.Circle(V(8.8, -20.7, 0), V(0, 0, 1), 1.7), math.radians(-90), math.radians(90)),  # 10
    Part.LineSegment(V(8.8, -22.4, 0), V(-8.8, -22.4, 0)),  # 11
    Part.ArcOfCircle(Part.Circle(V(-20.7, 8.8, 0), V(0, 0, 1), 1.7), math.radians(0), math.radians(180)),  # 12
    Part.LineSegment(V(-19, 8.8, 0), V(-19, -8.8, 0)),  # 13
    Part.ArcOfCircle(Part.Circle(V(-20.7, -8.8, 0), V(0, 0, 1), 1.7), math.radians(180), math.radians(360)),  # 14
    Part.LineSegment(V(-22.4, -8.8, 0), V(-22.4, 8.8, 0)),  # 15
], False)
sketch11.addConstraint([
    Sketcher.Constraint("Tangent", 0, 1, 1, 1),
    Sketcher.Constraint("Tangent", 1, 2, 2, 2),
    Sketcher.Constraint("Tangent", 2, 1, 3, 1),
    Sketcher.Constraint("Tangent", 3, 2, 0, 2),
    Sketcher.Constraint("Tangent", 4, 1, 5, 1),
    Sketcher.Constraint("Tangent", 5, 2, 6, 2),
    Sketcher.Constraint("Tangent", 6, 1, 7, 1),
    Sketcher.Constraint("Tangent", 7, 2, 4, 2),
    Sketcher.Constraint("Tangent", 8, 1, 9, 1),
    Sketcher.Constraint("Tangent", 9, 2, 10, 2),
    Sketcher.Constraint("Tangent", 10, 1, 11, 1),
    Sketcher.Constraint("Tangent", 11, 2, 8, 2),
    Sketcher.Constraint("Tangent", 12, 1, 13, 1),
    Sketcher.Constraint("Tangent", 13, 2, 14, 2),
    Sketcher.Constraint("Tangent", 14, 1, 15, 1),
    Sketcher.Constraint("Tangent", 15, 2, 12, 2),
    Sketcher.Constraint("Horizontal", 1),
    Sketcher.Constraint("Horizontal", 3),
    Sketcher.Constraint("Vertical", 5),
    Sketcher.Constraint("Vertical", 7),
    Sketcher.Constraint("Horizontal", 9),
    Sketcher.Constraint("Horizontal", 11),
    Sketcher.Constraint("Vertical", 13),
    Sketcher.Constraint("Vertical", 15),
    Sketcher.Constraint("Equal", 2, 4),
    Sketcher.Constraint("Equal", 6, 8),
    Sketcher.Constraint("Equal", 10, 12),
    Sketcher.Constraint("Symmetric", 2, 3, 8, 3, -1, 1),
    Sketcher.Constraint("Symmetric", 4, 3, 12, 3, -1, 1),
    Sketcher.Constraint("Horizontal", 6, 3, 12, 3),
    Sketcher.Constraint("Horizontal", 4, 3, 14, 3),
    Sketcher.Constraint("Vertical", 0, 3, 8, 3),
    Sketcher.Constraint("Vertical", 2, 3, 10, 3),
    Sketcher.Constraint("Equal", 11, 5),
    Sketcher.Constraint("Radius", 0, Q("1.7 mm")),
    Sketcher.Constraint("DistanceX", 1, 1, 1, 2, Q("17.6 mm")),
    Sketcher.Constraint("DistanceY", -1, 1, 0, 3, Q("20.66 mm")),
    Sketcher.Constraint("DistanceX", -1, 1, 4, 3, Q("20.66 mm")),
])
pocket6 = doc.addObject("PartDesign::Pocket", "Pocket005")
body.addObject(pocket6)
pocket6.Profile = sketch11
pocket6.Length = 4
pocket6.Reversed = True

# Sketch on XY plane
sketch12 = doc.addObject("Sketcher::SketchObject", "Sketch011")
body.addObject(sketch12)
sketch12.AttachmentSupport = (doc.XY_Plane, [""])
sketch12.MapMode = "FlatFace"
sketch12.addGeometry([
    Part.Circle(V(14.3, 20.7, 0), V(0, 0, 1), 2.5),  # 0
    Part.Circle(V(14.3, 20.7, 0), V(0, 0, 1), 1),  # 1
    Part.Circle(V(-14.3, 20.7, 0), V(0, 0, 1), 2.5),  # 2
    Part.Circle(V(-14.3, 20.7, 0), V(0, 0, 1), 1),  # 3
    Part.Circle(V(20.7, -14.3, 0), V(0, 0, 1), 2.5),  # 4
    Part.Circle(V(20.7, -14.3, 0), V(0, 0, 1), 1),  # 5
    Part.Circle(V(20.7, 14.3, 0), V(0, 0, 1), 2.5),  # 6
    Part.Circle(V(20.7, 14.3, 0), V(0, 0, 1), 1),  # 7
    Part.Circle(V(-14.3, -20.7, 0), V(0, 0, 1), 2.5),  # 8
    Part.Circle(V(-14.3, -20.7, 0), V(0, 0, 1), 1),  # 9
    Part.Circle(V(14.3, -20.7, 0), V(0, 0, 1), 2.5),  # 10
    Part.Circle(V(14.3, -20.7, 0), V(0, 0, 1), 1),  # 11
    Part.Circle(V(-20.7, 14.3, 0), V(0, 0, 1), 2.5),  # 12
    Part.Circle(V(-20.7, 14.3, 0), V(0, 0, 1), 1),  # 13
    Part.Circle(V(-20.7, -14.3, 0), V(0, 0, 1), 2.5),  # 14
    Part.Circle(V(-20.7, -14.3, 0), V(0, 0, 1), 1),  # 15
], False)
sketch12.addConstraint([
    Sketcher.Constraint("Coincident", 1, 3, 0, 3),
    Sketcher.Constraint("Coincident", 3, 3, 2, 3),
    Sketcher.Constraint("Coincident", 5, 3, 4, 3),
    Sketcher.Constraint("Coincident", 7, 3, 6, 3),
    Sketcher.Constraint("Coincident", 9, 3, 8, 3),
    Sketcher.Constraint("Coincident", 11, 3, 10, 3),
    Sketcher.Constraint("Coincident", 13, 3, 12, 3),
    Sketcher.Constraint("Coincident", 15, 3, 14, 3),
    Sketcher.Constraint("Equal", 0, 2),
    Sketcher.Constraint("Equal", 1, 3),
    Sketcher.Constraint("Equal", 2, 4),
    Sketcher.Constraint("Equal", 3, 5),
    Sketcher.Constraint("Equal", 4, 6),
    Sketcher.Constraint("Equal", 5, 7),
    Sketcher.Constraint("Equal", 6, 8),
    Sketcher.Constraint("Equal", 7, 9),
    Sketcher.Constraint("Equal", 8, 10),
    Sketcher.Constraint("Equal", 9, 11),
    Sketcher.Constraint("Equal", 10, 12),
    Sketcher.Constraint("Equal", 11, 13),
    Sketcher.Constraint("Equal", 12, 14),
    Sketcher.Constraint("Equal", 13, 15),
    Sketcher.Constraint("Symmetric", 0, 3, 8, 3, -1, 1),
    Sketcher.Constraint("Symmetric", 2, 3, 10, 3, -1, 1),
    Sketcher.Constraint("Symmetric", 4, 3, 12, 3, -1, 1),
    Sketcher.Constraint("Symmetric", 6, 3, 14, 3, -1, 1),
    Sketcher.Constraint("Symmetric", 0, 3, 2, 3, -2),
    Sketcher.Constraint("Symmetric", 6, 3, 12, 3, -2),
    Sketcher.Constraint("Diameter", 0, Q("4.95 mm")),
    Sketcher.Constraint("Diameter", 1, Q("2.05 mm")),
    Sketcher.Constraint("DistanceX", -1, 1, 0, 3, Q("14.3 mm")),
    Sketcher.Constraint("DistanceY", 4, 3, -1, 1, Q("14.3 mm")),
    Sketcher.Constraint("DistanceY", -1, 1, 0, 3, Q("20.66 mm")),
    Sketcher.Constraint("DistanceX", -1, 1, 4, 3, Q("20.66 mm")),
])
pad4 = doc.addObject("PartDesign::Pad", "Pad003")
body.addObject(pad4)
pad4.Profile = sketch12
pad4.Length = 2.2
pad4.Reversed = True

# Sketch on XY plane
sketch13 = doc.addObject("Sketcher::SketchObject", "Sketch012")
body.addObject(sketch13)
sketch13.AttachmentSupport = (doc.XY_Plane, [""])
sketch13.MapMode = "FlatFace"
sketch13.addGeometry([
    Part.Circle(V(-21.2, -21.2, 0), V(0, 0, 1), 1.6),
    Part.Circle(V(21.2, 21.2, 0), V(0, 0, 1), 1.6),
], False)
sketch13.addConstraint([
    Sketcher.Constraint("Equal", 0, 1),
    Sketcher.Constraint("Symmetric", 0, 3, 1, 3, -1, 1),
    Sketcher.Constraint("Diameter", 0, Q("3.1 mm")),
    Sketcher.Constraint("DistanceX", 0, 3, -1, 1, Q("21.2 mm")),
    Sketcher.Constraint("DistanceY", 0, 3, -1, 1, Q("21.2 mm")),
])
doc.recompute()
hole3 = doc.addObject("PartDesign::Hole", "Hole002")
body.addObject(hole3)
hole3.Profile = sketch13
hole3.ThreadType = "None"
hole3.Diameter = 3.1
hole3.DepthType = "Dimension"
hole3.Depth = 16
hole3.DrillPoint = "Angled"
hole3.DrillPointAngle = 118
hole3.HoleCutType = "Counterbore"
hole3.HoleCutDiameter = 5.5
hole3.HoleCutDepth = 3.2
hole3.Reversed = True

# Sketch on XY plane
sketch14 = doc.addObject("Sketcher::SketchObject", "Sketch013")
body.addObject(sketch14)
sketch14.AttachmentSupport = (doc.XY_Plane, [""])
sketch14.MapMode = "FlatFace"
add_polygon(sketch14, [(-19, -23.4), (-22, -24.3), (-24.3, -22), (-23.4, -19), (-20.4, -18.1), (-18.1, -20.4)])  # lines 0-5
add_polygon(sketch14, [(22, 24.3), (24.3, 22), (23.4, 19), (20.4, 18.1), (18.1, 20.4), (19, 23.4)])  # lines 6-11
sketch14.addConstraint([
    Sketcher.Constraint("Symmetric", 1, 2, 6, 2, -1, 1),
    Sketcher.Constraint("Symmetric", 2, 2, 7, 2, -1, 1),
    Sketcher.Constraint("Symmetric", 3, 2, 8, 2, -1, 1),
    Sketcher.Constraint("Symmetric", 4, 2, 9, 2, -1, 1),
    Sketcher.Constraint("Symmetric", 5, 2, 10, 2, -1, 1),
    Sketcher.Constraint("Symmetric", 0, 2, 11, 2, -1, 1),
    Sketcher.Constraint("Parallel", 0, 3),
    Sketcher.Constraint("Parallel", 1, 4),
    Sketcher.Constraint("Parallel", 2, 5),
    Sketcher.Constraint("Equal", 0, 1),
    Sketcher.Constraint("Equal", 1, 2),
    Sketcher.Constraint("Equal", 2, 3),
    Sketcher.Constraint("Angle", 1, Q("135 deg")),
    Sketcher.Constraint("DistanceX", 4, 2, 6, 2, Q("42.4 mm")),
    Sketcher.Constraint("DistanceY", 4, 2, 6, 2, Q("42.4 mm")),
    Sketcher.Constraint("DistanceX", 0, 2, -1, 1, Q("22.022 mm")),
    Sketcher.Constraint("DistanceY", 1, 2, -1, 1, Q("22.022 mm")),
    Sketcher.Constraint("DistanceX", 1, 2, 3, 2, Q("3.889 mm")),
])
pocket7 = doc.addObject("PartDesign::Pocket", "Pocket006")
body.addObject(pocket7)
pocket7.Profile = sketch14
pocket7.Length = 3.2
pocket7.Reversed = True

doc.recompute()
